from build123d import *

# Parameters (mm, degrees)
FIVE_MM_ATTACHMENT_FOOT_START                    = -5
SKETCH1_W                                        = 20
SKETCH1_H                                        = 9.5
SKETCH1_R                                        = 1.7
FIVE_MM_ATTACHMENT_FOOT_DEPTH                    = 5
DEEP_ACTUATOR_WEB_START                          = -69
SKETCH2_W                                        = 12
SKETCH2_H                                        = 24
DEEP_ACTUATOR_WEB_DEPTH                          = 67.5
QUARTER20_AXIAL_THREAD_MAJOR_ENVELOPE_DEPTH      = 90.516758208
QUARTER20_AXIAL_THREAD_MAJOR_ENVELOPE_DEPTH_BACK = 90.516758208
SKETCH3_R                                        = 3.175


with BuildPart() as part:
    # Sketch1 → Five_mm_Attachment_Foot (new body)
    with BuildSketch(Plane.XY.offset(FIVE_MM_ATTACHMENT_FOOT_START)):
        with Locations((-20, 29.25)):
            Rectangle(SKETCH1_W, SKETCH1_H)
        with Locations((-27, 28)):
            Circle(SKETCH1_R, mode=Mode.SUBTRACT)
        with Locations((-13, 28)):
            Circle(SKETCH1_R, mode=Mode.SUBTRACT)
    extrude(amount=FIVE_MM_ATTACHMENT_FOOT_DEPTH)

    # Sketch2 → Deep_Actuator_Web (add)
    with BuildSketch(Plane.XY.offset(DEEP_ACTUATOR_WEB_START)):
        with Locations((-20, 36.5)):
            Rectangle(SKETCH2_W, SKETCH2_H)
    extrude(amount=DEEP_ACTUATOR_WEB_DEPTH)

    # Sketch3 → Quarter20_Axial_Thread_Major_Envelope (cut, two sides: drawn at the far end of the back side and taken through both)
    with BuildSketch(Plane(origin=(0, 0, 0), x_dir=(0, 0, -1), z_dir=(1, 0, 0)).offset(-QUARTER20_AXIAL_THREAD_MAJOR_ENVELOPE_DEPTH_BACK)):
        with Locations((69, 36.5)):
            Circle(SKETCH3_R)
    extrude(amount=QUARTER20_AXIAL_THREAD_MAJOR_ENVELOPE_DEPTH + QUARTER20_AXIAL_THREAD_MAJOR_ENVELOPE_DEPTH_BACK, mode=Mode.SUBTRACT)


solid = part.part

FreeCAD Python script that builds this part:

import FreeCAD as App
import Part
import Sketcher


def add_polygon(sketch, points):
    """Adds a closed chain of lines whose ends are joined by coincident constraints."""
    first, n = sketch.GeometryCount, len(points)
    for a, b in zip(points, points[1:] + points[:1]):
        sketch.addGeometry(Part.LineSegment(App.Vector(*a, 0), App.Vector(*b, 0)), False)
    for i in range(n):
        sketch.addConstraint(Sketcher.Constraint("Coincident", first + i, 2, first + (i + 1) % n, 1))

doc = App.newDocument("Part")
params = doc.addObject("Spreadsheet::Sheet", "Params")
for row, (alias, value) in enumerate([
    ("sketch1_diameter", "3.4 mm"),
    ("sketch1_width", "20 mm"),
    ("sketch1_height", "9.5 mm"),
    ("pad1_length", "5 mm"),
    ("sketch2_width", "12 mm"),
    ("sketch2_height", "24 mm"),
    ("pad2_length", "67.5 mm"),
    ("sketch3_diameter", "6.35 mm"),
], start=1):
    params.set(f"A{row}", alias)
    params.set(f"B{row}", "=" + value)
    params.setAlias(f"B{row}", alias)

body = doc.addObject("PartDesign::Body", "Body")

# Sketch on XY plane
sketch1 = body.newObject("Sketcher::SketchObject", "Sketch")
sketch1.AttachmentSupport = (doc.getObject("XY_Plane"), [""])
sketch1.MapMode = "FlatFace"
sketch1.AttachmentOffset = App.Placement(App.Vector(0, 0, -5), App.Rotation())
add_polygon(sketch1, [(-30, 34), (-30, 24.5), (-10, 24.5), (-10, 34)])  # lines 0-3
sketch1.addGeometry(Part.Circle(App.Vector(-27, 28, 0), App.Vector(0, 0, 1), 1.7), False)  # 4
sketch1.addGeometry(Part.Circle(App.Vector(-13, 28, 0), App.Vector(0, 0, 1), 1.7), False)  # 5
sketch1.addConstraint([
    Sketcher.Constraint("Vertical", 0),
    Sketcher.Constraint("Horizontal", 1),
    Sketcher.Constraint("Vertical", 2),
    Sketcher.Constraint("Horizontal", 3),
    Sketcher.Constraint("Equal", 4, 5),
    Sketcher.Constraint("Horizontal", 4, 3, 5, 3),
    Sketcher.Constraint("Diameter", 4, 3.4),
    Sketcher.Constraint("DistanceX", 1, 1, 1, 2, 20.0),
    Sketcher.Constraint("DistanceY", 0, 2, 0, 1, 9.5),
    Sketcher.Constraint("DistanceX", 4, 3, -1, 1, 27.0),
    Sketcher.Constraint("DistanceY", -1, 1, 4, 3, 28.0),
    Sketcher.Constraint("DistanceX", 5, 3, -1, 1, 13.0),
    Sketcher.Constraint("DistanceX", 0, 2, -1, 1, 30.0),
    Sketcher.Constraint("DistanceY", -1, 1, 2, 2, 34.0),
])
sketch1.setExpression("Constraints[10]", "Params.sketch1_diameter")
sketch1.setExpression("Constraints[11]", "Params.sketch1_width")
sketch1.setExpression("Constraints[12]", "Params.sketch1_height")
pad1 = body.newObject("PartDesign::Pad", "Pad")
pad1.Profile = sketch1
pad1.setExpression("Length", "Params.pad1_length")

# Sketch on XY plane
sketch2 = body.newObject("Sketcher::SketchObject", "Sketch001")
sketch2.AttachmentSupport = (doc.getObject("XY_Plane"), [""])
sketch2.MapMode = "FlatFace"
sketch2.AttachmentOffset = App.Placement(App.Vector(0, 0, -69), App.Rotation())
add_polygon(sketch2, [(-26, 48.5), (-26, 24.5), (-14, 24.5), (-14, 48.5)])  # lines 0-3
sketch2.addConstraint([
    Sketcher.Constraint("Vertical", 0),
    Sketcher.Constraint("Horizontal", 1),
    Sketcher.Constraint("Vertical", 2),
    Sketcher.Constraint("Horizontal", 3),
    Sketcher.Constraint("DistanceX", 1, 1, 1, 2, 12.0),
    Sketcher.Constraint("DistanceY", 0, 2, 0, 1, 24.0),
    Sketcher.Constraint("DistanceX", 0, 2, -1, 1, 26.0),
    Sketcher.Constraint("DistanceY", -1, 1, 0, 2, 24.5),
])
sketch2.setExpression("Constraints[8]", "Params.sketch2_width")
sketch2.setExpression("Constraints[9]", "Params.sketch2_height")
pad2 = body.newObject("PartDesign::Pad", "Pad001")
pad2.Profile = sketch2
pad2.setExpression("Length", "Params.pad2_length")

# Sketch on YZ plane
sketch3 = body.newObject("Sketcher::SketchObject", "Sketch002")
sketch3.AttachmentSupport = (doc.getObject("YZ_Plane"), [""])
sketch3.MapMode = "FlatFace"
sketch3.addGeometry(Part.Circle(App.Vector(36.5, -69, 0), App.Vector(0, 0, 1), 3.175), False)
sketch3.addConstraint([
    Sketcher.Constraint("Diameter", 0, 6.35),
    Sketcher.Constraint("DistanceY", 0, 3, -1, 1, 69.0),
    Sketcher.Constraint("DistanceX", -1, 1, 0, 3, 36.5),
])
sketch3.setExpression("Constraints[0]", "Params.sketch3_diameter")
pocket1 = body.newObject("PartDesign::Pocket", "Pocket")
pocket1.Profile = sketch3
pocket1.Type = "ThroughAll"
pocket1.Midplane = True

doc.recompute()
